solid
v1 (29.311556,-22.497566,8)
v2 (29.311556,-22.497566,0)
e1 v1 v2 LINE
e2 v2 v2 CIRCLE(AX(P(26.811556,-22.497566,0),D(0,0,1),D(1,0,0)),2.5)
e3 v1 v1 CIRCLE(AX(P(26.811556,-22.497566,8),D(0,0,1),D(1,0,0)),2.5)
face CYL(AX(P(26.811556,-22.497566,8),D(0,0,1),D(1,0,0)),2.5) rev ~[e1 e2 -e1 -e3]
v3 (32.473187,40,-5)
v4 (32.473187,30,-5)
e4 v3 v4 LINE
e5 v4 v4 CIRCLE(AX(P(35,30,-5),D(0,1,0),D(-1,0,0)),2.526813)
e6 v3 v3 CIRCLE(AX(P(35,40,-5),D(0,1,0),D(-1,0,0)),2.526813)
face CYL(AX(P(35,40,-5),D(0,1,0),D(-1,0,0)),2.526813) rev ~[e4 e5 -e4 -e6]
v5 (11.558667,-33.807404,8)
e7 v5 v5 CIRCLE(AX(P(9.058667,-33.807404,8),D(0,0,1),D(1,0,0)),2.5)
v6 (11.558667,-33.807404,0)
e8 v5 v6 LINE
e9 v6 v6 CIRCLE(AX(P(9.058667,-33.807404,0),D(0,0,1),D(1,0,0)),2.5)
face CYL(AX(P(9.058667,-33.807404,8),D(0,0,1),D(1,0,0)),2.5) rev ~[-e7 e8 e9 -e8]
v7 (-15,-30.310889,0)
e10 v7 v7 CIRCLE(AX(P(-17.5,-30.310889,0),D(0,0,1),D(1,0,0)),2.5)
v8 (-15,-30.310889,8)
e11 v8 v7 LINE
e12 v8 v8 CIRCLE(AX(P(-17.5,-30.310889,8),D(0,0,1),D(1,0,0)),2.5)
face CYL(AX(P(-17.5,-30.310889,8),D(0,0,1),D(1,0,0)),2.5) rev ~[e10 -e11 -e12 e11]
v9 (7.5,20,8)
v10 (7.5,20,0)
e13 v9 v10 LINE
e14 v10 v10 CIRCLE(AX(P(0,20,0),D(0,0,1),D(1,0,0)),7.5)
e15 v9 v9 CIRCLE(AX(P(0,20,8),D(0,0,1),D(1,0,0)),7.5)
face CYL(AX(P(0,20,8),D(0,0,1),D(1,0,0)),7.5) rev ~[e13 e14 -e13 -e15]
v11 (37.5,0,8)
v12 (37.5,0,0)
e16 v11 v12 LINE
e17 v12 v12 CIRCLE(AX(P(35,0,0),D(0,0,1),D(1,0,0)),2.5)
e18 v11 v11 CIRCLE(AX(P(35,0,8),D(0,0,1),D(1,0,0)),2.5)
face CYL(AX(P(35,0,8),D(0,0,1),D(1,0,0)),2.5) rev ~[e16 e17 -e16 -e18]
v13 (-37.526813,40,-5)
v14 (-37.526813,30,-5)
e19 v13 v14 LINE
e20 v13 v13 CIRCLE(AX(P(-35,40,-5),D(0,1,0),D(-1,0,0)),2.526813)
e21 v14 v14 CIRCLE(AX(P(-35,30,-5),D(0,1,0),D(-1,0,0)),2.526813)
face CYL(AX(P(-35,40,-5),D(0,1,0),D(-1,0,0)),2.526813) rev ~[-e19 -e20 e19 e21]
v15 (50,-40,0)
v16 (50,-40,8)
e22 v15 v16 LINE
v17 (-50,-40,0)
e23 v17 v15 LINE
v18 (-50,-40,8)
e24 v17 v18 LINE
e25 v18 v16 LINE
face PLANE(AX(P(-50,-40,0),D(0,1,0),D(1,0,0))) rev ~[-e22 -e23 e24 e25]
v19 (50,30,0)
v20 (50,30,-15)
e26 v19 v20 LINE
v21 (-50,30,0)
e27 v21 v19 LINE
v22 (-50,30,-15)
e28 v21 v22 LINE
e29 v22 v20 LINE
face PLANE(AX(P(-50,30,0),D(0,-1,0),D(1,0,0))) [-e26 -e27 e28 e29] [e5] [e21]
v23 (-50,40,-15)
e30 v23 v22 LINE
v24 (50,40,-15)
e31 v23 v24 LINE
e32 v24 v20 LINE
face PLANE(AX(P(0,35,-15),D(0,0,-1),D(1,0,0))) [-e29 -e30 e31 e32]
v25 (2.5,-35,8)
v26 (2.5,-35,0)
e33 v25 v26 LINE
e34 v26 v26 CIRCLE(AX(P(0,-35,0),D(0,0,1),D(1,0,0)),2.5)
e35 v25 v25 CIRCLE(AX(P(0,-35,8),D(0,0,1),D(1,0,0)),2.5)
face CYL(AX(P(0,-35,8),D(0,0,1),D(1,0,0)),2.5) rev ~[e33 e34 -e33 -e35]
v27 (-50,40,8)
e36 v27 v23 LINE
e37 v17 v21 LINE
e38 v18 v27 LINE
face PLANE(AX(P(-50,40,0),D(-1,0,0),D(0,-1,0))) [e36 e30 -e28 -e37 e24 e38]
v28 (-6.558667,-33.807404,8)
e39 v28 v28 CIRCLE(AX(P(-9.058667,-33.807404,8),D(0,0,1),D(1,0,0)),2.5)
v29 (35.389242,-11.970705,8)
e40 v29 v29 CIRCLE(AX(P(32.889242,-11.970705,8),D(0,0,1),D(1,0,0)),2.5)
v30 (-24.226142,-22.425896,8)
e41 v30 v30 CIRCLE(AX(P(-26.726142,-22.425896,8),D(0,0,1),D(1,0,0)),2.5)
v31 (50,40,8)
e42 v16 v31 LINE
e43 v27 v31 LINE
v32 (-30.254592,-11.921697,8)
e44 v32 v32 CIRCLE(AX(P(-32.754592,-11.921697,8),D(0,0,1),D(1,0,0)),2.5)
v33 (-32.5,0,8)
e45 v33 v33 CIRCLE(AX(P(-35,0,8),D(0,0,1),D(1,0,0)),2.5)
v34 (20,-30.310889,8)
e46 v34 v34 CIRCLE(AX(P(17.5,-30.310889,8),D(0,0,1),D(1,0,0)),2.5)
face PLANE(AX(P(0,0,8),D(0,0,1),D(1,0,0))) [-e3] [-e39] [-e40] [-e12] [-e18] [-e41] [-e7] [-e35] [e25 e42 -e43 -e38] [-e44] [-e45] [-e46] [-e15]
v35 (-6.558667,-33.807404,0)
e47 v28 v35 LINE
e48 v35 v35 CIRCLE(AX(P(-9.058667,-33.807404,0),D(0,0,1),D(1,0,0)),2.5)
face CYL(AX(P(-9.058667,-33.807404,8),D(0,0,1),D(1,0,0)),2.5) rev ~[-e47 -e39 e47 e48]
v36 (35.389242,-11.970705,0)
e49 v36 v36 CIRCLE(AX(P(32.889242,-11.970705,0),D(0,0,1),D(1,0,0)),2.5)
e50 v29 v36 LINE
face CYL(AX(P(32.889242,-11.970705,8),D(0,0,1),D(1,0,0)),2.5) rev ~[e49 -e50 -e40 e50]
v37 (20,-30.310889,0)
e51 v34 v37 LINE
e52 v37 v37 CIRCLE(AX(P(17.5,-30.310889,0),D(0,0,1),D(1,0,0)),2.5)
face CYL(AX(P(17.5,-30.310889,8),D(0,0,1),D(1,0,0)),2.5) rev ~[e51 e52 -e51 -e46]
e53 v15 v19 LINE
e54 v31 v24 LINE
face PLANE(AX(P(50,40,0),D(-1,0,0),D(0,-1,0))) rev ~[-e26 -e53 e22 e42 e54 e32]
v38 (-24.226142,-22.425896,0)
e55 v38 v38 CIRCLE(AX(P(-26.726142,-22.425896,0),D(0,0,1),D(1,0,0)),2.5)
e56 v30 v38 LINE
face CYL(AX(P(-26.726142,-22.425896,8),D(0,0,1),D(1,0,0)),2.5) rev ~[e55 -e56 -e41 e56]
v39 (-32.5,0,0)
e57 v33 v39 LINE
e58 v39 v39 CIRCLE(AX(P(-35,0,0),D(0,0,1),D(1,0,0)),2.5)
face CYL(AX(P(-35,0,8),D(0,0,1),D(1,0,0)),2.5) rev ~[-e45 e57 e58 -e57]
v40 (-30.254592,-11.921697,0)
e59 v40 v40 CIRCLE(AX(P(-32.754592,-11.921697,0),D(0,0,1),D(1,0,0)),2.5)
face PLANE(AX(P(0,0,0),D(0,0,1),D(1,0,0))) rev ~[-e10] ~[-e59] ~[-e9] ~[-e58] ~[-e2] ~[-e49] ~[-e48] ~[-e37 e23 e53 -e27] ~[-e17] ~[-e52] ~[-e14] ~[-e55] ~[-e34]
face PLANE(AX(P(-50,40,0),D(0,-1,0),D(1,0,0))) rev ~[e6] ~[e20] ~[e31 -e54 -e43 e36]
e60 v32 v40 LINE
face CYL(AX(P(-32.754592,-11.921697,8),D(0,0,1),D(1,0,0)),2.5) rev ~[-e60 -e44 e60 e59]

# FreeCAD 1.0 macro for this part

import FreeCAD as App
import Part
import Sketcher
from FreeCAD import Vector


def add_polygon(sketch, points):
    """Adds a closed chain of lines whose ends are joined by coincident constraints."""
    first, n = sketch.GeometryCount, len(points)
    for a, b in zip(points, points[1:] + points[:1]):
        sketch.addGeometry(Part.LineSegment(App.Vector(*a, 0), App.Vector(*b, 0)), False)
    for i in range(n):
        sketch.addConstraint(Sketcher.Constraint("Coincident", first + i, 2, first + (i + 1) % n, 1))

doc = App.newDocument("Part")
body = doc.addObject("PartDesign::Body", "Body")

# Sketch on XY plane
sketch1 = body.newObject("Sketcher::SketchObject", "Sketch")
sketch1.AttachmentSupport = (doc.getObject("XY_Plane"), [""])
sketch1.MapMode = "FlatFace"
add_polygon(sketch1, [(-50, 40), (-50, -40), (50, -40), (50, 40)])  # lines 0-3
sketch1.addConstraint(Sketcher.Constraint("Vertical", 0))
sketch1.addConstraint(Sketcher.Constraint("Horizontal", 1))
sketch1.addConstraint(Sketcher.Constraint("Vertical", 2))
sketch1.addConstraint(Sketcher.Constraint("Horizontal", 3))
sketch1.addConstraint(Sketcher.Constraint("Symmetric", 0, 2, 2, 2, -1, 1))
sketch1.addConstraint(Sketcher.Constraint("DistanceX", 1, 1, 1, 2, 100.0))
sketch1.addConstraint(Sketcher.Constraint("DistanceY", 0, 2, 0, 1, 80.0))
pad1 = body.newObject("PartDesign::Pad", "Pad")
pad1.Profile = sketch1
pad1.Length = 8

# Sketch on XY plane
sketch2 = body.newObject("Sketcher::SketchObject", "Sketch001")
sketch2.AttachmentSupport = (doc.getObject("XY_Plane"), [""])
sketch2.MapMode = "FlatFace"
sketch2.AttachmentOffset = App.Placement(Vector(0, 0, 8), App.Rotation())
sketch2.addGeometry(Part.Circle(Vector(-32.754592, -11.921697, 0), Vector(0, 0, 1), 2.5), False)
sketch2.addGeometry(Part.Circle(Vector(-26.726142, -22.425896, 0), Vector(0, 0, 1), 2.5), False)
sketch2.addGeometry(Part.Circle(Vector(-17.5, -30.310889, 0), Vector(0, 0, 1), 2.5), False)
sketch2.addGeometry(Part.Circle(Vector(0, -35, 0), Vector(0, 0, 1), 2.5), False)
sketch2.addGeometry(Part.Circle(Vector(-35, 0, 0), Vector(0, 0, 1), 2.5), False)
sketch2.addGeometry(Part.Circle(Vector(17.5, -30.310889, 0), Vector(0, 0, 1), 2.5), False)
sketch2.addGeometry(Part.Circle(Vector(26.811556, -22.497566, 0), Vector(0, 0, 1), 2.5), False)
sketch2.addGeometry(Part.Circle(Vector(32.889242, -11.970705, 0), Vector(0, 0, 1), 2.5), False)
sketch2.addGeometry(Part.Circle(Vector(35, 0, 0), Vector(0, 0, 1), 2.5), False)
sketch2.addGeometry(Part.Circle(Vector(-9.058667, -33.807404, 0), Vector(0, 0, 1), 2.5), False)
sketch2.addGeometry(Part.Circle(Vector(9.058667, -33.807404, 0), Vector(0, 0, 1), 2.5), False)
sketch2.addConstraint(Sketcher.Constraint("Equal", 0, 1))
sketch2.addConstraint(Sketcher.Constraint("Equal", 1, 2))
sketch2.addConstraint(Sketcher.Constraint("Equal", 2, 3))
sketch2.addConstraint(Sketcher.Constraint("Equal", 3, 4))
sketch2.addConstraint(Sketcher.Constraint("Equal", 4, 5))
sketch2.addConstraint(Sketcher.Constraint("Equal", 5, 6))
sketch2.addConstraint(Sketcher.Constraint("Equal", 6, 7))
sketch2.addConstraint(Sketcher.Constraint("Equal", 7, 8))
sketch2.addConstraint(Sketcher.Constraint("Equal", 8, 9))
sketch2.addConstraint(Sketcher.Constraint("Equal", 9, 10))
sketch2.addConstraint(Sketcher.Constraint("Symmetric", 4, 3, 8, 3, -1, 1))
sketch2.addConstraint(Sketcher.Constraint("Symmetric", 2, 3, 5, 3, -2))
sketch2.addConstraint(Sketcher.Constraint("Symmetric", 9, 3, 10, 3, -2))
sketch2.addConstraint(Sketcher.Constraint("PointOnObject", 3, 3, -2))
sketch2.addConstraint(Sketcher.Constraint("PointOnObject", 4, 3, -1))
sketch2.addConstraint(Sketcher.Constraint("Diameter", 0, 5.0))
sketch2.addConstraint(Sketcher.Constraint("DistanceY", 3, 3, -1, 1, 35.0))
sketch2.addConstraint(Sketcher.Constraint("DistanceX", 4, 3, -1, 1, 35.0))
sketch2.addConstraint(Sketcher.Constraint("DistanceX", 2, 3, 5, 3, 35.0))
sketch2.addConstraint(Sketcher.Constraint("DistanceY", 1, 3, 0, 3, 10.504199))
sketch2.addConstraint(Sketcher.Constraint("DistanceX", 1, 3, -1, 1, 26.726142))
sketch2.addConstraint(Sketcher.Constraint("DistanceY", 2, 3, -1, 1, 30.310889))
sketch2.addConstraint(Sketcher.Constraint("DistanceX", 0, 3, 1, 3, 6.02845))
sketch2.addConstraint(Sketcher.Constraint("DistanceY", 6, 3, 1, 3, 0.07167))
sketch2.addConstraint(Sketcher.Constraint("DistanceY", 6, 3, 7, 3, 10.526861))
sketch2.addConstraint(Sketcher.Constraint("DistanceX", 10, 3, 6, 3, 17.752889))
sketch2.addConstraint(Sketcher.Constraint("DistanceY", 0, 3, -1, 1, 11.921697))
sketch2.addConstraint(Sketcher.Constraint("DistanceX", -1, 1, 6, 3, 26.811556))
sketch2.addConstraint(Sketcher.Constraint("DistanceX", -1, 1, 7, 3, 32.889242))
sketch2.addConstraint(Sketcher.Constraint("DistanceY", 9, 3, -1, 1, 33.807404))
pocket1 = body.newObject("PartDesign::Pocket", "Pocket")
pocket1.Profile = sketch2
pocket1.Length = 25

# Sketch on XY plane
sketch3 = body.newObject("Sketcher::SketchObject", "Sketch002")
sketch3.AttachmentSupport = (doc.getObject("XY_Plane"), [""])
sketch3.MapMode = "FlatFace"
add_polygon(sketch3, [(-50, 30), (-50, 40), (50, 40), (50, 30)])  # lines 0-3
sketch3.addConstraint(Sketcher.Constraint("Vertical", 0))
sketch3.addConstraint(Sketcher.Constraint("Horizontal", 1))
sketch3.addConstraint(Sketcher.Constraint("Vertical", 2))
sketch3.addConstraint(Sketcher.Constraint("Horizontal", 3))
sketch3.addConstraint(Sketcher.Constraint("DistanceX", 1, 1, 1, 2, 100.0))
sketch3.addConstraint(Sketcher.Constraint("DistanceY", 0, 1, 0, 2, 10.0))
sketch3.addConstraint(Sketcher.Constraint("DistanceX", 0, 2, -1, 1, 50.0))
sketch3.addConstraint(Sketcher.Constraint("DistanceY", -1, 1, 0, 2, 40.0))
pad2 = body.newObject("PartDesign::Pad", "Pad001")
pad2.Profile = sketch3
pad2.Length = 15
pad2.Reversed = True

# Sketch on XZ plane
sketch4 = body.newObject("Sketcher::SketchObject", "Sketch003")
sketch4.AttachmentSupport = (doc.getObject("XZ_Plane"), [""])
sketch4.MapMode = "FlatFace"
sketch4.AttachmentOffset = App.Placement(Vector(0, 0, -40), App.Rotation())
sketch4.addGeometry(Part.Circle(Vector(-35, -5, 0), Vector(0, 0, 1), 2.526813), False)
sketch4.addGeometry(Part.Circle(Vector(35, -5, 0), Vector(0, 0, 1), 2.526813), False)
sketch4.addConstraint(Sketcher.Constraint("Equal", 0, 1))
sketch4.addConstraint(Sketcher.Constraint("Symmetric", 0, 3, 1, 3, -2))
sketch4.addConstraint(Sketcher.Constraint("DistanceX", 0, 3, -1, 1, 35.0))
sketch4.addConstraint(Sketcher.Constraint("DistanceY", 0, 3, -1, 1, 5.0))
sketch4.addConstraint(Sketcher.Constraint("Diameter", 0, 5.053626))
pocket2 = body.newObject("PartDesign::Pocket", "Pocket001")
pocket2.Profile = sketch4
pocket2.Length = 25
pocket2.Reversed = True

# Sketch on XY plane
sketch5 = body.newObject("Sketcher::SketchObject", "Sketch004")
sketch5.AttachmentSupport = (doc.getObject("XY_Plane"), [""])
sketch5.MapMode = "FlatFace"
sketch5.AttachmentOffset = App.Placement(Vector(0, 0, 8), App.Rotation())
sketch5.addGeometry(Part.Circle(Vector(0, 20, 0), Vector(0, 0, 1), 7.5), False)
sketch5.addConstraint(Sketcher.Constraint("PointOnObject", 0, 3, -2))
sketch5.addConstraint(Sketcher.Constraint("Diameter", 0, 15.0))
sketch5.addConstraint(Sketcher.Constraint("DistanceY", -1, 1, 0, 3, 20.0))
pocket3 = body.newObject("PartDesign::Pocket", "Pocket002")
pocket3.Profile = sketch5
pocket3.Length = 25

doc.recompute()
